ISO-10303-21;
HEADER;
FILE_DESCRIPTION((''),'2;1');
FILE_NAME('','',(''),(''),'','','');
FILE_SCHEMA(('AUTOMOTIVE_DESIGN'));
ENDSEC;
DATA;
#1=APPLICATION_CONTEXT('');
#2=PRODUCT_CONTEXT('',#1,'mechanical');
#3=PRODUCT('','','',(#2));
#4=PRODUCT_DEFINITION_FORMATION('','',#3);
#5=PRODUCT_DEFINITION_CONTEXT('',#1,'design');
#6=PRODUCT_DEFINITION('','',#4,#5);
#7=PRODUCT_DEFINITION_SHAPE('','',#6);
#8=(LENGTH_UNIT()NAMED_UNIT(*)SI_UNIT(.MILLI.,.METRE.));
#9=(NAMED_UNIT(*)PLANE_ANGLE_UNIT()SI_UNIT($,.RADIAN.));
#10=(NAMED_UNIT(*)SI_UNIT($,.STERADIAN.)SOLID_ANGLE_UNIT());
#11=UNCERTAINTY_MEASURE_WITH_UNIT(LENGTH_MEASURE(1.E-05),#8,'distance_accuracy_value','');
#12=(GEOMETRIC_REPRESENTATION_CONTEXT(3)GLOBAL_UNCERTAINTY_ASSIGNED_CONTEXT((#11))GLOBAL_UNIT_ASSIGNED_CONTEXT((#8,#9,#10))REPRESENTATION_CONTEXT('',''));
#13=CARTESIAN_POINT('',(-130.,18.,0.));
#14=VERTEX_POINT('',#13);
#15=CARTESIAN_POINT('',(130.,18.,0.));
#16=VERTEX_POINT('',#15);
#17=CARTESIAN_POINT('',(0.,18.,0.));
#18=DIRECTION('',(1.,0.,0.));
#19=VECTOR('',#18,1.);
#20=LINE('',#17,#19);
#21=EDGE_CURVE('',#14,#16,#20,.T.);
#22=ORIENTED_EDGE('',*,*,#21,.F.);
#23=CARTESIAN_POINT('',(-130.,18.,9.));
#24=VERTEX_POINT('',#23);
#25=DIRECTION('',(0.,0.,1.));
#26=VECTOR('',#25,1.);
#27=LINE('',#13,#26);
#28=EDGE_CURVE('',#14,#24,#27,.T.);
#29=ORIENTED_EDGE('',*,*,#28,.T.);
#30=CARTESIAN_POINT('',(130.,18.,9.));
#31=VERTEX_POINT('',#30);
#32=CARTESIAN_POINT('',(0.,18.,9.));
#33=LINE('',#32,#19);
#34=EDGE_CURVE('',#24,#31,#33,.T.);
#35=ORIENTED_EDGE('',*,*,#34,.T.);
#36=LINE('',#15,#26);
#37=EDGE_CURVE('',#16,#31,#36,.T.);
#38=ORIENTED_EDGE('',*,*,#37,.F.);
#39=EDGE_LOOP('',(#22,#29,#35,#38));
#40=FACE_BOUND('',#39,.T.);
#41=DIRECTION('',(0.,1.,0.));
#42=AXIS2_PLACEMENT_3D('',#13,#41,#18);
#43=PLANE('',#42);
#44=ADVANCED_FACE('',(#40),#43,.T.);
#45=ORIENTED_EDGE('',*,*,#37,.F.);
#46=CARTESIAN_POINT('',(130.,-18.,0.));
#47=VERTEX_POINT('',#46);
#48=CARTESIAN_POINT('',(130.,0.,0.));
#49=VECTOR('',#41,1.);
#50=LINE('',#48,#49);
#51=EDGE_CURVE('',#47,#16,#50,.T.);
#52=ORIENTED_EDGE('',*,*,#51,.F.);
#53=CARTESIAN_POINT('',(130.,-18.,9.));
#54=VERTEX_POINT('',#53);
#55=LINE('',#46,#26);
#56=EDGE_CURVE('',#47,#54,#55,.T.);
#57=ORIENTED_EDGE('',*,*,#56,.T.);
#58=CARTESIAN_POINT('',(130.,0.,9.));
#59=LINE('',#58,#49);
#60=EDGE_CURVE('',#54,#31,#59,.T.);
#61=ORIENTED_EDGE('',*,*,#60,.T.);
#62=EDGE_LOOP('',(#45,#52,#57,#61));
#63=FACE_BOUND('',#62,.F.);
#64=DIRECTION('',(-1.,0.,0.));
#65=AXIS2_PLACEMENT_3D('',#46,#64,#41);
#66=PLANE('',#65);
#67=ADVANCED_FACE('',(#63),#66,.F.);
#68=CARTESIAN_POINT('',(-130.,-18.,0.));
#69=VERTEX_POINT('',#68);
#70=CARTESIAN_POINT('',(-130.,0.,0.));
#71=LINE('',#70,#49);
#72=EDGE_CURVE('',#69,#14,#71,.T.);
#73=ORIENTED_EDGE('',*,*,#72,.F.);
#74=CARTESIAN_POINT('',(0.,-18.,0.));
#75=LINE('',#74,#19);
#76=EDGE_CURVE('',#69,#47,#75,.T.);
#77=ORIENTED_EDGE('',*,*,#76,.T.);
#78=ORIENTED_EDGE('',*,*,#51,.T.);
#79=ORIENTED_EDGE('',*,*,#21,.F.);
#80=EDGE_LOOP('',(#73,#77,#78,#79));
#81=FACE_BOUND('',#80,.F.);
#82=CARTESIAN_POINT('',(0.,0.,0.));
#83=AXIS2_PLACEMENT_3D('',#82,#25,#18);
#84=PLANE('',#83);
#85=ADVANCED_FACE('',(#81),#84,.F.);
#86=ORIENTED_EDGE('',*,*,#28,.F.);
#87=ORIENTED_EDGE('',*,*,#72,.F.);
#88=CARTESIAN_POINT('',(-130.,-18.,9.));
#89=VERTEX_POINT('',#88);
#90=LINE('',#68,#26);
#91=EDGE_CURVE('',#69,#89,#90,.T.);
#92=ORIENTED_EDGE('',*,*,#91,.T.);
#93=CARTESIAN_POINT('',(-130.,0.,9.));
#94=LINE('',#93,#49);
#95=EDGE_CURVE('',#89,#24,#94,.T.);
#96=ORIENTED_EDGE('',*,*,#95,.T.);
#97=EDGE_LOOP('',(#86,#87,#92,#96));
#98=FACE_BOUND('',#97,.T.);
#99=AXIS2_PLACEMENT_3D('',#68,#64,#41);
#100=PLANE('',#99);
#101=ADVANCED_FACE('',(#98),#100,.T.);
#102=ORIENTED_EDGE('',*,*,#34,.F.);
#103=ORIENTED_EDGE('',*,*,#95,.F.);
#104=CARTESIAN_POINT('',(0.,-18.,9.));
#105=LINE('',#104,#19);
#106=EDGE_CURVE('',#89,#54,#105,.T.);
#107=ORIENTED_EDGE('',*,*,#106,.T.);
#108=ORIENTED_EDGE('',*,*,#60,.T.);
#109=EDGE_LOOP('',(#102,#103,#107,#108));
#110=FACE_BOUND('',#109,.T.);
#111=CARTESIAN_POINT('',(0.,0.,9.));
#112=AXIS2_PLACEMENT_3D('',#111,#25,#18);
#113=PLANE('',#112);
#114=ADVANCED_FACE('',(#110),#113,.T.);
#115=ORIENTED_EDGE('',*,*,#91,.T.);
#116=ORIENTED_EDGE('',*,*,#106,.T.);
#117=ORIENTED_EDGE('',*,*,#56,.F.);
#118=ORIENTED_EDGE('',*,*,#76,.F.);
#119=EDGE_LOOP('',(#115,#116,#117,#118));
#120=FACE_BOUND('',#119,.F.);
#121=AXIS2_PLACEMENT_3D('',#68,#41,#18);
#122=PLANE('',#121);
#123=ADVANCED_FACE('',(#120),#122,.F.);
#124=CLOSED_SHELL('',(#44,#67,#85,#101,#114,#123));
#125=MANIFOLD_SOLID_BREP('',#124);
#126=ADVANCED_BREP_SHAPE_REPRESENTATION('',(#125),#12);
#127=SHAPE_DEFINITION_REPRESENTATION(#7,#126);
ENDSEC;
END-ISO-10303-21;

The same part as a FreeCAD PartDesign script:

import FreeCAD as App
import Part
import Sketcher
Q = App.Units.Quantity

doc = App.newDocument("Part")
params = doc.addObject("Spreadsheet::Sheet", "Params")
for row, (alias, value) in enumerate([
    ("sketch1_width", "260 mm"),
    ("sketch1_height", "36 mm"),
    ("pad1_length", "9 mm"),
], start=1):
    params.set(f"A{row}", alias)
    params.set(f"B{row}", "=" + value)
    params.setAlias(f"B{row}", alias)

body = doc.addObject("PartDesign::Body", "Body")

sketch1 = body.newObject("Sketcher::SketchObject", "Sketch")
sketch1.AttachmentSupport = (doc.getObject("XY_Plane"), [""])
sketch1.MapMode = "FlatFace"
sketch1.addGeometry([
    Part.LineSegment(App.Vector(-130, 18, 0), App.Vector(-130, -18, 0)),
    Part.LineSegment(App.Vector(-130, -18, 0), App.Vector(130, -18, 0)),
    Part.LineSegment(App.Vector(130, -18, 0), App.Vector(130, 18, 0)),
    Part.LineSegment(App.Vector(130, 18, 0), App.Vector(-130, 18, 0)),
], False)
sketch1.addConstraint([
    Sketcher.Constraint("Coincident", 0, 2, 1, 1),
    Sketcher.Constraint("Coincident", 1, 2, 2, 1),
    Sketcher.Constraint("Coincident", 2, 2, 3, 1),
    Sketcher.Constraint("Coincident", 3, 2, 0, 1),
    Sketcher.Constraint("Vertical", 0),
    Sketcher.Constraint("Horizontal", 1),
    Sketcher.Constraint("Vertical", 2),
    Sketcher.Constraint("Horizontal", 3),
    Sketcher.Constraint("Symmetric", 0, 2, 2, 2, -1, 1),
    Sketcher.Constraint("DistanceX", 1, 1, 1, 2, Q("260 mm")),
    Sketcher.Constraint("DistanceY", 0, 2, 0, 1, Q("36 mm")),
])
sketch1.setExpression("Constraints[9]", "Params.sketch1_width")
sketch1.setExpression("Constraints[10]", "Params.sketch1_height")
pad1 = body.newObject("PartDesign::Pad", "Pad")
pad1.Profile = sketch1
pad1.setExpression("Length", "Params.pad1_length")

doc.recompute()
